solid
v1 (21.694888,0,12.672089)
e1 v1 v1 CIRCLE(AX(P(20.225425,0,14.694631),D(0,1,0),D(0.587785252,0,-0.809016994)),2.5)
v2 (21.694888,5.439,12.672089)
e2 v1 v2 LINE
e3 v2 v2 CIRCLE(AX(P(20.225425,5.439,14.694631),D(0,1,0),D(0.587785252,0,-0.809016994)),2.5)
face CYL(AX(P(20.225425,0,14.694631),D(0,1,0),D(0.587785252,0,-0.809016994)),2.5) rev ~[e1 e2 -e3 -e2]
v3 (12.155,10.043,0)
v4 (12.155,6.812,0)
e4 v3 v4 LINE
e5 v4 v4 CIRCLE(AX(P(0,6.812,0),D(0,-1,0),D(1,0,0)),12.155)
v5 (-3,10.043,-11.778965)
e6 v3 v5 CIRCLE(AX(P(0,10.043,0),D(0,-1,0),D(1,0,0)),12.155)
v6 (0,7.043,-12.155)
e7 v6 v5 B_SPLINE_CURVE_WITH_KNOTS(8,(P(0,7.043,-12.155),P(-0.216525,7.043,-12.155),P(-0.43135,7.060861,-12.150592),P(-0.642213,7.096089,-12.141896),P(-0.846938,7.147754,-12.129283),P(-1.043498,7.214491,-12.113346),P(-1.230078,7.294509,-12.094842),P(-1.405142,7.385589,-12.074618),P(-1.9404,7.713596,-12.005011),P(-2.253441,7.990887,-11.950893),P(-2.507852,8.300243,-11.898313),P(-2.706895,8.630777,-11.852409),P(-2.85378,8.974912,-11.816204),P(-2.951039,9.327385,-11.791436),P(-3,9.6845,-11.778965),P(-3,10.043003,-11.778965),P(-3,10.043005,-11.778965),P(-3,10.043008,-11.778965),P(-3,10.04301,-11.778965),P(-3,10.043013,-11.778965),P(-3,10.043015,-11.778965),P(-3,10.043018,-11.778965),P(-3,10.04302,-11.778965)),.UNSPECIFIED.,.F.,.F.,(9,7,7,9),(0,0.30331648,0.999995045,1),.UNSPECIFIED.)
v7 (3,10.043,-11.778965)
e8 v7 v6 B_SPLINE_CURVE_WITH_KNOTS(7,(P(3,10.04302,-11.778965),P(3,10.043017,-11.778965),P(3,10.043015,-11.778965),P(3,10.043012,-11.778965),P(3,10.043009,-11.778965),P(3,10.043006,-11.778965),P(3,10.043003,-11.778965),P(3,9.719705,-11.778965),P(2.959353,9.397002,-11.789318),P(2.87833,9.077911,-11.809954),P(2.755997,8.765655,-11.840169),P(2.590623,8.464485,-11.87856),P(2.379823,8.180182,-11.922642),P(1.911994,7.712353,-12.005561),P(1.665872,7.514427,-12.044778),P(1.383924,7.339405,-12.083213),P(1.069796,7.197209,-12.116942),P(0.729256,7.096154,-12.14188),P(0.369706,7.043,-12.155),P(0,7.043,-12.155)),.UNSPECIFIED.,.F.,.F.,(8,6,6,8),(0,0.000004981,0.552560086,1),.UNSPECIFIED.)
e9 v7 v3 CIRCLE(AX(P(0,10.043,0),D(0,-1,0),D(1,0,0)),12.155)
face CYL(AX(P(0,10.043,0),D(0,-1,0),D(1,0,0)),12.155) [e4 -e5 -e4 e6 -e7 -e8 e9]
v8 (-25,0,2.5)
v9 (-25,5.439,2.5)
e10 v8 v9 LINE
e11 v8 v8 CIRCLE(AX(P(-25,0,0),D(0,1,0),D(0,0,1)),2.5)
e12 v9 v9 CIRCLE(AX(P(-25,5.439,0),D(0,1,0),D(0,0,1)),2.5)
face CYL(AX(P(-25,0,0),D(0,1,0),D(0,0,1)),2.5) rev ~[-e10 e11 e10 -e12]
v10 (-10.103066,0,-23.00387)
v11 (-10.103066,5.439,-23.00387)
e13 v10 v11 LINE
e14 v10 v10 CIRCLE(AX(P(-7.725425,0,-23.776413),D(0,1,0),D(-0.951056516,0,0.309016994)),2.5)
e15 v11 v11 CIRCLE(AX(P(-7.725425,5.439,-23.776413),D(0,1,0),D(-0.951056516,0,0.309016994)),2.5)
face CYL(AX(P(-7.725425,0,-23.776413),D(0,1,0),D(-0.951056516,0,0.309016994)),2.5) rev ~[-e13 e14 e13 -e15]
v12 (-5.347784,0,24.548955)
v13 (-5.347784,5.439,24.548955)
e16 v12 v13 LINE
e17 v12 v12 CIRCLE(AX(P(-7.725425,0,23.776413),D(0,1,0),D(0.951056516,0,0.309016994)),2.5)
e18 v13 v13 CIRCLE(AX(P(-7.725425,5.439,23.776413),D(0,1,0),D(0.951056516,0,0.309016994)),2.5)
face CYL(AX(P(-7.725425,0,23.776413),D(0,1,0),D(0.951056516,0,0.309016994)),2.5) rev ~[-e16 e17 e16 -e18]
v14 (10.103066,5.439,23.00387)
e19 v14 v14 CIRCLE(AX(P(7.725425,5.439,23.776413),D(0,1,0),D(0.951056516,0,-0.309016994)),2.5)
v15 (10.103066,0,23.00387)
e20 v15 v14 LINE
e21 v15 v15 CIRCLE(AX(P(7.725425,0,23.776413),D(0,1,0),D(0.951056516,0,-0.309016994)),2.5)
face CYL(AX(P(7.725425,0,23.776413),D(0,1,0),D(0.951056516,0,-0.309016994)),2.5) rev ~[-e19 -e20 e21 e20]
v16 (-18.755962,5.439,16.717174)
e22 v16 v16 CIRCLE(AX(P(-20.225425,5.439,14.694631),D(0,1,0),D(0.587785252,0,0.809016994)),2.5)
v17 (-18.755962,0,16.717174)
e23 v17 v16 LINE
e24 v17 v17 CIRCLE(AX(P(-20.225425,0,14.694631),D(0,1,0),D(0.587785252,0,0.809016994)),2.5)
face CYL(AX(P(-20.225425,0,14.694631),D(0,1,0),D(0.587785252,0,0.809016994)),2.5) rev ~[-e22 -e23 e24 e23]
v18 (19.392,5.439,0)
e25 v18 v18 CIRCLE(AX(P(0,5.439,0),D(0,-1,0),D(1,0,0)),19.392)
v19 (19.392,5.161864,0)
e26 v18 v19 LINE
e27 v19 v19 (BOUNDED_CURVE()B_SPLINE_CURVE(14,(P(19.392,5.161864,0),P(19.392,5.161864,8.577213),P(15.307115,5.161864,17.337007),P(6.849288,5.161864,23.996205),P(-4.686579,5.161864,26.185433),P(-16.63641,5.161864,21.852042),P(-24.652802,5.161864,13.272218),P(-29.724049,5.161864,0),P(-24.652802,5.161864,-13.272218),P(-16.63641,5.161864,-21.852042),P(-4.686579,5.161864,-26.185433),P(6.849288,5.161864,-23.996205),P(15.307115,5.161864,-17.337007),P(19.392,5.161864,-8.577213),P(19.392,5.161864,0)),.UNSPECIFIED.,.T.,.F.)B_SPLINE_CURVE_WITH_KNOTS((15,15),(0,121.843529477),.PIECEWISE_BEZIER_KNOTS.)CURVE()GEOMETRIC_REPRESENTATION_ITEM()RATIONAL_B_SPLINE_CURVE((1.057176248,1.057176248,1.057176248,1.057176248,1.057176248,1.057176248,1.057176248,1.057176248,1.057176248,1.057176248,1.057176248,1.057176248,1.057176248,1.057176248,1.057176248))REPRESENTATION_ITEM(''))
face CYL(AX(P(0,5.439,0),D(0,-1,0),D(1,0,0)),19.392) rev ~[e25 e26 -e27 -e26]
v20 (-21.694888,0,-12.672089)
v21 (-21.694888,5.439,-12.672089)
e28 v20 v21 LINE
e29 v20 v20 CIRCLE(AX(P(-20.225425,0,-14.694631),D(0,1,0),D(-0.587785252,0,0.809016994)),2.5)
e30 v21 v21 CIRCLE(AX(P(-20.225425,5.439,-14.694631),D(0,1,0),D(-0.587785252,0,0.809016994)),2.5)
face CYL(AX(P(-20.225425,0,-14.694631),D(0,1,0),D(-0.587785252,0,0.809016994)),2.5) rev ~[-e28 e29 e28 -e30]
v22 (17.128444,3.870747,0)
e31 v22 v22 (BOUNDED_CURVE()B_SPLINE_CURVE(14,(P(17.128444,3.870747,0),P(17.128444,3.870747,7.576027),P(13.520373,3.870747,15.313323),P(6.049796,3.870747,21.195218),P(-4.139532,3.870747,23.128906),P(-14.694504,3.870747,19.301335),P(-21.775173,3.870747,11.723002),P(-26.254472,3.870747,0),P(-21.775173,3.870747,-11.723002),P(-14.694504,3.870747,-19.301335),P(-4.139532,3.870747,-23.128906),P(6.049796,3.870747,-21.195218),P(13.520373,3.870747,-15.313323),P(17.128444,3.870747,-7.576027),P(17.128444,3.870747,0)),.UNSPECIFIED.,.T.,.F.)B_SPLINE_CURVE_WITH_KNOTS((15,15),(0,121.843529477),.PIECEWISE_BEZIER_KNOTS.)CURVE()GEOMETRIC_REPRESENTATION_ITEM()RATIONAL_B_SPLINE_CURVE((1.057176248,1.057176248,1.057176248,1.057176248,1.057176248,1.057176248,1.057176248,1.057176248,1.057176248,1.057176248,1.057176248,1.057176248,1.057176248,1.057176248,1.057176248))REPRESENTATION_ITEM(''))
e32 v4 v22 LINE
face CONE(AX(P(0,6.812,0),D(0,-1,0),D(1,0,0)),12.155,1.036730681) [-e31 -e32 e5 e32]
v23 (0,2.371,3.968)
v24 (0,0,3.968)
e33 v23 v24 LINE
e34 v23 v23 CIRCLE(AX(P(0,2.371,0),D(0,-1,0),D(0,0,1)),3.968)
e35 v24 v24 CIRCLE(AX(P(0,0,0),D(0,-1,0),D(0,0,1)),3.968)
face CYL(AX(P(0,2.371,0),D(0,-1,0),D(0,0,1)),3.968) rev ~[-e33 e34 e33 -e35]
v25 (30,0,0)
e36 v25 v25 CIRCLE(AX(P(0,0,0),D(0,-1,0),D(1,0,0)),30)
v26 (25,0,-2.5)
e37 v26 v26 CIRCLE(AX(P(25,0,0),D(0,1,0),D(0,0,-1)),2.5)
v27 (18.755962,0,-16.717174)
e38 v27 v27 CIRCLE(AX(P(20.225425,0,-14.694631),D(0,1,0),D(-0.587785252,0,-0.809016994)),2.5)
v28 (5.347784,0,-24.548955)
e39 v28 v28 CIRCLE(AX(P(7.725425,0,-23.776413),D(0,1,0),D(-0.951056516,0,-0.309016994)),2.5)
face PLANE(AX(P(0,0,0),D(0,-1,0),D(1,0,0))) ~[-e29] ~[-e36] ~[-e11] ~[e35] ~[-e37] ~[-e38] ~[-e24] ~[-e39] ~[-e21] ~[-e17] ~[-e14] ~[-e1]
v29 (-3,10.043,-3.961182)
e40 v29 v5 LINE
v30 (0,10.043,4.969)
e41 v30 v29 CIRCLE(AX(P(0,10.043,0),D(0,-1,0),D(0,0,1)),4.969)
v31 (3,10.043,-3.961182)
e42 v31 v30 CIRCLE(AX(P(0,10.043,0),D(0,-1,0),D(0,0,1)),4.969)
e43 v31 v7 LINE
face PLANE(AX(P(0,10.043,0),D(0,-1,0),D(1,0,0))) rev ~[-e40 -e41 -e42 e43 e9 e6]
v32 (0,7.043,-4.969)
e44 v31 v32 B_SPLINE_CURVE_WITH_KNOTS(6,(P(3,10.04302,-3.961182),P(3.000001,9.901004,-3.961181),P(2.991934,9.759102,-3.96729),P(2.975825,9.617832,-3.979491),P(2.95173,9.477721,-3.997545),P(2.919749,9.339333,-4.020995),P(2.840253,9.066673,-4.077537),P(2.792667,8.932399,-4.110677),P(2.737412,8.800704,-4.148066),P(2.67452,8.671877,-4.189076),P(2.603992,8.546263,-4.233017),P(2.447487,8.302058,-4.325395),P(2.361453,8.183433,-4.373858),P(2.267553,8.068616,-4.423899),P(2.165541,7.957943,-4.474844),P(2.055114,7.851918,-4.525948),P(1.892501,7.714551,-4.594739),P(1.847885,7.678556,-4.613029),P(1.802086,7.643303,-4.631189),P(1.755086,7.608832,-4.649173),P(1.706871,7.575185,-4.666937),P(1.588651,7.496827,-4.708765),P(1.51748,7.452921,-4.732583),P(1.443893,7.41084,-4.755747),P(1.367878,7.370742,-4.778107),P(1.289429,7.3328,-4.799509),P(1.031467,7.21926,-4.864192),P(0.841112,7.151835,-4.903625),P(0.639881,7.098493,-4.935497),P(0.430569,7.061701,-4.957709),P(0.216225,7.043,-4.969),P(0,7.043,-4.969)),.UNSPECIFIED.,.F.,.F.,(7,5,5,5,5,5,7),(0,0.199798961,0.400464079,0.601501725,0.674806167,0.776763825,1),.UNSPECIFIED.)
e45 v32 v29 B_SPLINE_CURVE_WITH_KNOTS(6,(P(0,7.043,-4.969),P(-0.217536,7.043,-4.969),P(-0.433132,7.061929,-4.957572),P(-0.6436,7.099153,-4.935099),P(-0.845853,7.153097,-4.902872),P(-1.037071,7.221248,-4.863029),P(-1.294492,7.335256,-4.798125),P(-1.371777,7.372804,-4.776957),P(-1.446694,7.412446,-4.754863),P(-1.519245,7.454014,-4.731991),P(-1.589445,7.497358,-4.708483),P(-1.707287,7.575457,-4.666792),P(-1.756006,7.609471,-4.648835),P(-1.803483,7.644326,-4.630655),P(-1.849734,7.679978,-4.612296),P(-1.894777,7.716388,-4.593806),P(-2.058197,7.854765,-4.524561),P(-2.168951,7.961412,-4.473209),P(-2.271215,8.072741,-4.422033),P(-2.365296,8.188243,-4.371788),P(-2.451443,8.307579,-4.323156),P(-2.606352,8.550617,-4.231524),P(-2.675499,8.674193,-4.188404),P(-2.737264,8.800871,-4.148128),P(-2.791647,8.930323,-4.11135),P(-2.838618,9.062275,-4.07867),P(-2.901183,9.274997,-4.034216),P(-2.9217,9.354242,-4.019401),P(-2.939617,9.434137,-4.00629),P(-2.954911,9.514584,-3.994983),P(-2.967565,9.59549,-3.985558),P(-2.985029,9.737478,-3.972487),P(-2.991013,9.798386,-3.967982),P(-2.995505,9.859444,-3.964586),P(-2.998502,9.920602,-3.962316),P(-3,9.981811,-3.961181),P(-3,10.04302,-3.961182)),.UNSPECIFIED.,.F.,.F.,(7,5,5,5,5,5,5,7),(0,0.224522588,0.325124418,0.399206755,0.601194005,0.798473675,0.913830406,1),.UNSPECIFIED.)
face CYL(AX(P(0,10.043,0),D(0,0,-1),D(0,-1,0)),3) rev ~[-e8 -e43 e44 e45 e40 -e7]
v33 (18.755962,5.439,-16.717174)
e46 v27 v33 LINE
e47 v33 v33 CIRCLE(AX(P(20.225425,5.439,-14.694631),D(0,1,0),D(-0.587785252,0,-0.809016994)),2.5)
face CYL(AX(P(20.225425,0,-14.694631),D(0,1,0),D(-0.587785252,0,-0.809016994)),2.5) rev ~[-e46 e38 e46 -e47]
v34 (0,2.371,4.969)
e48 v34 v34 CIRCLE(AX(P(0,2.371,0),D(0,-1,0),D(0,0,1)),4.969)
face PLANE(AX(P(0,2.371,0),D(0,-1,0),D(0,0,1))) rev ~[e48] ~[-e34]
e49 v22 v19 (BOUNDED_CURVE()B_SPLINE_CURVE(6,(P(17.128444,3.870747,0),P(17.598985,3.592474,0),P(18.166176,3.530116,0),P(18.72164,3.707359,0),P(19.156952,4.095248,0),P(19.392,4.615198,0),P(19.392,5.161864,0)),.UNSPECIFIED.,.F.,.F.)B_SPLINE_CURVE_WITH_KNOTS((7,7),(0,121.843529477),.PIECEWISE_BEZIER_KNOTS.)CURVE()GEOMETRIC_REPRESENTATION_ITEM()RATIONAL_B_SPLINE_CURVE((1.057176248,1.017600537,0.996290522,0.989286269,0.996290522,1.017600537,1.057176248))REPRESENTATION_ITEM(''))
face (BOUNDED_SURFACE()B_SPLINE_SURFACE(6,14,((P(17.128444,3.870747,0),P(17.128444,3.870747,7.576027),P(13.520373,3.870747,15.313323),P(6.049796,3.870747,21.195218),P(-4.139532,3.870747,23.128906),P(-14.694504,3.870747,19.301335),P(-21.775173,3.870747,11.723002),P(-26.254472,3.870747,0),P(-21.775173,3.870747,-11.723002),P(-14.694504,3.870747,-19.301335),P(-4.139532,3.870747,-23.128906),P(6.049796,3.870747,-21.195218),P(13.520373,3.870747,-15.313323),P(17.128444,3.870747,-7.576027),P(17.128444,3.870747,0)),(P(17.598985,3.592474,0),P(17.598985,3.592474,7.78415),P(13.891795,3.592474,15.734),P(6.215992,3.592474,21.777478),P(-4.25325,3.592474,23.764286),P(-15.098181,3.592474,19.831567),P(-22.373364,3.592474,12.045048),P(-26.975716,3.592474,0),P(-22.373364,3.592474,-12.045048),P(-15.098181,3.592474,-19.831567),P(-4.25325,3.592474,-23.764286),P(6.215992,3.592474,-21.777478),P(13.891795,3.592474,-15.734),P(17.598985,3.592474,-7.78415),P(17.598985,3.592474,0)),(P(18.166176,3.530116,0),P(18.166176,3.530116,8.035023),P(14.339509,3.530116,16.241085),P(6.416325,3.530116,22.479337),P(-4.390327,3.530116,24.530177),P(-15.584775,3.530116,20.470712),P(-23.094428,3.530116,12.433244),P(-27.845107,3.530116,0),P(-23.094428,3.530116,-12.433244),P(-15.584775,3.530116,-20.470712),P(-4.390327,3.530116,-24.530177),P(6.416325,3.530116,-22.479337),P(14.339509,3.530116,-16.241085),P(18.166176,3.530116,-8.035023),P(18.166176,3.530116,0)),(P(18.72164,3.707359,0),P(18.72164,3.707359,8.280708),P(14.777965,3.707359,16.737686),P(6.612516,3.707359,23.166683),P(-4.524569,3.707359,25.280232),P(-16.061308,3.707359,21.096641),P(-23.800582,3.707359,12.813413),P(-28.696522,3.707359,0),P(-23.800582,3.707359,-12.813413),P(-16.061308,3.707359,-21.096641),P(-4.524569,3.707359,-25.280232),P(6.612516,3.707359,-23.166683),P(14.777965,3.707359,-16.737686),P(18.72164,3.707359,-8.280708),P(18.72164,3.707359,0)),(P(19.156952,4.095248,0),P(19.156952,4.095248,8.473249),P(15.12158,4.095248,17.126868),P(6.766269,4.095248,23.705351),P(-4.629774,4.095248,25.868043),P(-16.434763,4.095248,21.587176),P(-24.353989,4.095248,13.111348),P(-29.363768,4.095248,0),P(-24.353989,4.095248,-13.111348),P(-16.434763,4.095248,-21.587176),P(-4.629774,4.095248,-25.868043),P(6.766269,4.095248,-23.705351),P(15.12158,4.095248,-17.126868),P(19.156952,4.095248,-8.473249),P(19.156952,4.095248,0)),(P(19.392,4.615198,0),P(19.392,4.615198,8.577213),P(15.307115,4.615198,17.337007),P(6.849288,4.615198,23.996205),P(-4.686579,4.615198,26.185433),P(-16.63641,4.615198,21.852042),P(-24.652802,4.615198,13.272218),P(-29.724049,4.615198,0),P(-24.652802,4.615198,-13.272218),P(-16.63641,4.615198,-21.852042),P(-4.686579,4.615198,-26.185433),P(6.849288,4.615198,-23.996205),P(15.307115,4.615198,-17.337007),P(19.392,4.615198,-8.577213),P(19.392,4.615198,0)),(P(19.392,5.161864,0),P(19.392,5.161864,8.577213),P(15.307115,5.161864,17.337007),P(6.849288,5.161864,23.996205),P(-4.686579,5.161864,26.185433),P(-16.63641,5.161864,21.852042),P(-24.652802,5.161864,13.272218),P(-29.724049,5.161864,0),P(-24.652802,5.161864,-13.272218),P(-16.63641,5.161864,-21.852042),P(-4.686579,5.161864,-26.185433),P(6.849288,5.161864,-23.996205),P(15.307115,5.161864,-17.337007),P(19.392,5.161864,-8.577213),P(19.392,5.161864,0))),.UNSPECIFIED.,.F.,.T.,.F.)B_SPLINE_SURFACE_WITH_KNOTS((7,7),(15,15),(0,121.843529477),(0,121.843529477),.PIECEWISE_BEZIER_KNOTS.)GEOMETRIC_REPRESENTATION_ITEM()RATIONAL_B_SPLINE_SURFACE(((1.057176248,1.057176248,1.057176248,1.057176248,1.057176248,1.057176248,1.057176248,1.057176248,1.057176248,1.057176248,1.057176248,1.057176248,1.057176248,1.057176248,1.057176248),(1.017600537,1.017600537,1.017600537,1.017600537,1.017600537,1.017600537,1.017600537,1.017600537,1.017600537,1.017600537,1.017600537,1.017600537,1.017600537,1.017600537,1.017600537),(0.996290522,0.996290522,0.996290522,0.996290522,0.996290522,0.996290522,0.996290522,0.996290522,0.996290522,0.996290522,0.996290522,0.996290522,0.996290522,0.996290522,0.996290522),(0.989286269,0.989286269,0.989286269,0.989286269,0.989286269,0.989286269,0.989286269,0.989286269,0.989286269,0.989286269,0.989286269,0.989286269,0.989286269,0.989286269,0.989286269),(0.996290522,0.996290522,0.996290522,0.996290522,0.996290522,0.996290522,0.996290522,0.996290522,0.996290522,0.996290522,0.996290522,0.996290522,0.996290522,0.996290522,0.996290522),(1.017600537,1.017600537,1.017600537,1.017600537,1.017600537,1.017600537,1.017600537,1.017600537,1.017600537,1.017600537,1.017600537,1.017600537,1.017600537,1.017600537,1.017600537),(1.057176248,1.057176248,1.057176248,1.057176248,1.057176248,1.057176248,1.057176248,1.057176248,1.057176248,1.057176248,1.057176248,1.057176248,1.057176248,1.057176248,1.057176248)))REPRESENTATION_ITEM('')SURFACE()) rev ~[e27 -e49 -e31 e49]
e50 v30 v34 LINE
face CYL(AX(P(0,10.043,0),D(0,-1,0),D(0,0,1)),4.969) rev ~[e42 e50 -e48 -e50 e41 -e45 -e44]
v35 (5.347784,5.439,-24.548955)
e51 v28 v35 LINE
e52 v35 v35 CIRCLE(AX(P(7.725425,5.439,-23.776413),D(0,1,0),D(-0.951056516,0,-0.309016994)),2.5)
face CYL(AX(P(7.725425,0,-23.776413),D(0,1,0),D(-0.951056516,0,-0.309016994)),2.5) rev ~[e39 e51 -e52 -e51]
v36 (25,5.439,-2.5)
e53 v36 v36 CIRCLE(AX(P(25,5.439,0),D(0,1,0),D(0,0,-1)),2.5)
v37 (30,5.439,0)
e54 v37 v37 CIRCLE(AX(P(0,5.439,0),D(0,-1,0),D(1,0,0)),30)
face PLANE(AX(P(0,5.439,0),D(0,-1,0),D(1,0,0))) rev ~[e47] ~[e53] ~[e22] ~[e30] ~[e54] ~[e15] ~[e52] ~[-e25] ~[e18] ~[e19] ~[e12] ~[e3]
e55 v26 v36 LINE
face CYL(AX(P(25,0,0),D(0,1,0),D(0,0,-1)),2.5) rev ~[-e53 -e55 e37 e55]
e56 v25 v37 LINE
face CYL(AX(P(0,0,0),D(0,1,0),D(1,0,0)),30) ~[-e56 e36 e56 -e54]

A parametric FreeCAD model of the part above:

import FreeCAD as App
import Part
import Sketcher

V = App.Vector
Q = App.Units.Quantity


def edges_at(feature, points):
    """Names of the edges that pass closest to the given points."""
    edges = feature.Shape.Edges
    near = lambda p: min(range(len(edges)), key=lambda i: edges[i].distToShape(Part.Vertex(*p))[0])
    return sorted({f"Edge{near(p) + 1}" for p in points})

doc = App.newDocument("Part")
body = doc.addObject("PartDesign::Body", "Body")

sketch1 = doc.addObject("Sketcher::SketchObject", "Sketch")
body.addObject(sketch1)
sketch1.AttachmentSupport = (doc.XY_Plane, [""])
sketch1.MapMode = "FlatFace"
sketch1.addGeometry([
    Part.LineSegment(V(0, 0, 0), V(30, 0, 0)),
    Part.LineSegment(V(30, 0, 0), V(30, 5.4, 0)),
    Part.LineSegment(V(30, 5.4, 0), V(19.4, 5.4, 0)),
    Part.LineSegment(V(19.4, 5.4, 0), V(19.4, 2.5, 0)),
    Part.LineSegment(V(19.4, 2.5, 0), V(12.2, 6.8, 0)),
    Part.LineSegment(V(12.2, 6.8, 0), V(12.2, 10, 0)),
    Part.LineSegment(V(12.2, 10, 0), V(0, 10, 0)),
    Part.LineSegment(V(0, 10, 0), V(0, 0, 0)),
], False)
sketch1.addConstraint([
    Sketcher.Constraint("Coincident", 0, 2, 1, 1),
    Sketcher.Constraint("Coincident", 1, 2, 2, 1),
    Sketcher.Constraint("Coincident", 2, 2, 3, 1),
    Sketcher.Constraint("Coincident", 3, 2, 4, 1),
    Sketcher.Constraint("Coincident", 4, 2, 5, 1),
    Sketcher.Constraint("Coincident", 5, 2, 6, 1),
    Sketcher.Constraint("Coincident", 6, 2, 7, 1),
    Sketcher.Constraint("Coincident", 7, 2, 0, 1),
    Sketcher.Constraint("Horizontal", 0),
    Sketcher.Constraint("Vertical", 1),
    Sketcher.Constraint("Horizontal", 2),
    Sketcher.Constraint("Vertical", 3),
    Sketcher.Constraint("Vertical", 5),
    Sketcher.Constraint("Horizontal", 6),
    Sketcher.Constraint("Vertical", 7),
    Sketcher.Constraint("Coincident", 7, 2, -1, 1),
    Sketcher.Constraint("DistanceX", 0, 1, 0, 2, Q("30 mm")),
    Sketcher.Constraint("DistanceX", 2, 2, 2, 1, Q("10.608 mm")),
    Sketcher.Constraint("DistanceY", 1, 1, 1, 2, Q("5.439 mm")),
    Sketcher.Constraint("DistanceY", 5, 1, 5, 2, Q("3.231 mm")),
    Sketcher.Constraint("DistanceY", 7, 2, 7, 1, Q("10.043 mm")),
    Sketcher.Constraint("Angle", 4, Q("149.4003 deg")),
    Sketcher.Constraint("DistanceX", 4, 2, 1, 2, Q("17.845 mm")),
])
revolution = doc.addObject("PartDesign::Revolution", "Revolution")
body.addObject(revolution)
revolution.Profile = sketch1
revolution.ReferenceAxis = (sketch1, ["V_Axis"])
revolution.Angle = 360
doc.recompute()

fillet = doc.addObject("PartDesign::Fillet", "Fillet")
body.addObject(fillet)
fillet.Base = (revolution, edges_at(revolution, [(-19.392, 2.532, 0)]))
fillet.Radius = 1.5

sketch2 = doc.addObject("Sketcher::SketchObject", "Sketch001")
body.addObject(sketch2)
sketch2.AttachmentSupport = (doc.XZ_Plane, [""])
sketch2.MapMode = "FlatFace"
sketch2.addGeometry(Part.Circle(V(25, 0, 0), V(0, 0, 1), 2.5), False)
sketch2.addConstraint([
    Sketcher.Constraint("PointOnObject", 0, 3, -1),
    Sketcher.Constraint("Diameter", 0, Q("5 mm")),
    Sketcher.Constraint("DistanceX", -1, 1, 0, 3, Q("25 mm")),
])
doc.recompute()
hole = doc.addObject("PartDesign::Hole", "Hole")
body.addObject(hole)
hole.Profile = sketch2
hole.ThreadType = "None"
hole.Diameter = 5
hole.DepthType = "ThroughAll"
doc.recompute()

polarpattern = doc.addObject("PartDesign::PolarPattern", "PolarPattern")
body.addObject(polarpattern)
polarpattern.Originals = [hole]
polarpattern.Axis = (doc.Y_Axis, [""])
polarpattern.Angle = 360
polarpattern.Occurrences = 10
body.Tip = polarpattern

sketch3 = doc.addObject("Sketcher::SketchObject", "Sketch002")
body.addObject(sketch3)
sketch3.AttachmentSupport = (doc.XZ_Plane, [""])
sketch3.MapMode = "FlatFace"
sketch3.AttachmentOffset = App.Placement(V(0, 0, -10.043), App.Rotation())
sketch3.addGeometry(Part.Circle(V(0, 0, 0), V(0, 0, 1), 4), False)
sketch3.addConstraint([
    Sketcher.Constraint("Coincident", 0, 3, -1, 1),
    Sketcher.Constraint("Diameter", 0, Q("7.936 mm")),
])
doc.recompute()
hole2 = doc.addObject("PartDesign::Hole", "Hole001")
body.addObject(hole2)
hole2.Profile = sketch3
hole2.ThreadType = "None"
hole2.Diameter = 7.936
hole2.DepthType = "ThroughAll"
hole2.HoleCutType = "Counterbore"
hole2.HoleCutDiameter = 9.938
hole2.HoleCutDepth = 7.672
hole2.Reversed = True

sketch4 = doc.addObject("Sketcher::SketchObject", "Sketch003")
body.addObject(sketch4)
sketch4.AttachmentSupport = (doc.XY_Plane, [""])
sketch4.MapMode = "FlatFace"
sketch4.addGeometry(Part.Circle(V(0, 10, 0), V(0, 0, 1), 3), False)
sketch4.addConstraint([
    Sketcher.Constraint("PointOnObject", 0, 3, -2),
    Sketcher.Constraint("Diameter", 0, Q("6 mm")),
    Sketcher.Constraint("DistanceY", -1, 1, 0, 3, Q("10.043 mm")),
])
doc.recompute()
hole3 = doc.addObject("PartDesign::Hole", "Hole002")
body.addObject(hole3)
hole3.Profile = sketch4
hole3.ThreadType = "None"
hole3.Diameter = 6
hole3.DepthType = "ThroughAll"

doc.recompute()
